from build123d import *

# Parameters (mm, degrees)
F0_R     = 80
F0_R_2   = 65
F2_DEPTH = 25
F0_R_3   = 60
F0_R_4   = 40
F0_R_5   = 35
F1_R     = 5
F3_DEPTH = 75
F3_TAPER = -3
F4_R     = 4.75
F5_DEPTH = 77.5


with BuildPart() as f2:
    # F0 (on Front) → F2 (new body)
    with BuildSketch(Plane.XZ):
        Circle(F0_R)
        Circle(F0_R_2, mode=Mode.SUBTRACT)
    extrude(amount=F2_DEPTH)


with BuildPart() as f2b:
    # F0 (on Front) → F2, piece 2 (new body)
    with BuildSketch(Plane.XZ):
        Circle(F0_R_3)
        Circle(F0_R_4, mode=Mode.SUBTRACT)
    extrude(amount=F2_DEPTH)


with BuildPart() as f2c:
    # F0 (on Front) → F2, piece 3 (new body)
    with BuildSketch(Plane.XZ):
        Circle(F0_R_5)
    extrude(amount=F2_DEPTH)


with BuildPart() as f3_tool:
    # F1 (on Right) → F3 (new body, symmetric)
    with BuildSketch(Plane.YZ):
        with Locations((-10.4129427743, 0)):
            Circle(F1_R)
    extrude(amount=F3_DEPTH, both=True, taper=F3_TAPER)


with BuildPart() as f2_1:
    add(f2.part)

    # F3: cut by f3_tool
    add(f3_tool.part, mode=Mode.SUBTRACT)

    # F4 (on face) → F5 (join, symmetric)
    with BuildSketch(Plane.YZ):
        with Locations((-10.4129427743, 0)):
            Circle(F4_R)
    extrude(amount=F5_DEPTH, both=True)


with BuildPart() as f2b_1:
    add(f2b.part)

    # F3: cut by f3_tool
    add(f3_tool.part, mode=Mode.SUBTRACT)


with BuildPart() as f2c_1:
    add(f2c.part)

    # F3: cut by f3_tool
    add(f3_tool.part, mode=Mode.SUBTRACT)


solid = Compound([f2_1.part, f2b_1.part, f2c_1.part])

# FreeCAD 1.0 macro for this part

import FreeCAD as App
import Part
import Sketcher

V = App.Vector
Q = App.Units.Quantity

doc = App.newDocument("Part")
params = doc.addObject("Spreadsheet::Sheet", "Params")
for row, (alias, value) in enumerate([
    ("sketch1_diameter", "160 mm"),
    ("sketch1_diameter2", "130 mm"),
    ("pad1_length", "25 mm"),
    ("sketch2_diameter", "120 mm"),
    ("sketch2_diameter2", "80 mm"),
    ("pad2_length", "25 mm"),
    ("sketch3_diameter", "70 mm"),
    ("pad3_length", "25 mm"),
    ("sketch4_diameter", "10 mm"),
    ("pad4_length", "150 mm"),
    ("pad4_taper", "3 deg"),
    ("sketch5_diameter", "9.5 mm"),
    ("pad5_length", "155 mm"),
], start=1):
    params.set(f"A{row}", alias)
    params.set(f"B{row}", "=" + value)
    params.setAlias(f"B{row}", alias)

body = doc.addObject("PartDesign::Body", "Body")

# Sketch on XZ plane
sketch1 = doc.addObject("Sketcher::SketchObject", "Sketch")
body.addObject(sketch1)
sketch1.AttachmentSupport = (doc.XZ_Plane, [""])
sketch1.MapMode = "FlatFace"
sketch1.addGeometry([
    Part.Circle(V(0, 0, 0), V(0, 0, 1), 80),
    Part.Circle(V(0, 0, 0), V(0, 0, 1), 65),
], False)
sketch1.addConstraint([
    Sketcher.Constraint("Coincident", 0, 3, -1, 1),
    Sketcher.Constraint("Coincident", 1, 3, -1, 1),
    Sketcher.Constraint("Diameter", 0, Q("160 mm")),
    Sketcher.Constraint("Diameter", 1, Q("130 mm")),
])
sketch1.setExpression("Constraints[2]", "Params.sketch1_diameter")
sketch1.setExpression("Constraints[3]", "Params.sketch1_diameter2")
pad1 = doc.addObject("PartDesign::Pad", "Pad")
body.addObject(pad1)
pad1.Profile = sketch1
pad1.setExpression("Length", "Params.pad1_length")
body2 = doc.addObject("PartDesign::Body", "Body001")

# Sketch on XZ plane
sketch2 = doc.addObject("Sketcher::SketchObject", "Sketch001")
body2.addObject(sketch2)
sketch2.AttachmentSupport = (doc.getObject("XZ_Plane001"), [""])
sketch2.MapMode = "FlatFace"
sketch2.addGeometry([
    Part.Circle(V(0, 0, 0), V(0, 0, 1), 60),
    Part.Circle(V(0, 0, 0), V(0, 0, 1), 40),
], False)
sketch2.addConstraint([
    Sketcher.Constraint("Coincident", 0, 3, -1, 1),
    Sketcher.Constraint("Coincident", 1, 3, -1, 1),
    Sketcher.Constraint("Diameter", 0, Q("120 mm")),
    Sketcher.Constraint("Diameter", 1, Q("80 mm")),
])
sketch2.setExpression("Constraints[2]", "Params.sketch2_diameter")
sketch2.setExpression("Constraints[3]", "Params.sketch2_diameter2")
pad2 = doc.addObject("PartDesign::Pad", "Pad001")
body2.addObject(pad2)
pad2.Profile = sketch2
pad2.setExpression("Length", "Params.pad2_length")
body3 = doc.addObject("PartDesign::Body", "Body002")

# Sketch on XZ plane
sketch3 = doc.addObject("Sketcher::SketchObject", "Sketch002")
body3.addObject(sketch3)
sketch3.AttachmentSupport = (doc.getObject("XZ_Plane002"), [""])
sketch3.MapMode = "FlatFace"
sketch3.addGeometry(Part.Circle(V(0, 0, 0), V(0, 0, 1), 35), False)
sketch3.addConstraint([
    Sketcher.Constraint("Coincident", 0, 3, -1, 1),
    Sketcher.Constraint("Diameter", 0, Q("70 mm")),
])
sketch3.setExpression("Constraints[1]", "Params.sketch3_diameter")
pad3 = doc.addObject("PartDesign::Pad", "Pad002")
body3.addObject(pad3)
pad3.Profile = sketch3
pad3.setExpression("Length", "Params.pad3_length")
body4 = doc.addObject("PartDesign::Body", "Body003")

# Sketch on YZ plane
sketch4 = doc.addObject("Sketcher::SketchObject", "Sketch003")
body4.addObject(sketch4)
sketch4.AttachmentSupport = (doc.getObject("YZ_Plane003"), [""])
sketch4.MapMode = "FlatFace"
sketch4.addGeometry(Part.Circle(V(-10, 0, 0), V(0, 0, 1), 5), False)
sketch4.addConstraint([
    Sketcher.Constraint("PointOnObject", 0, 3, -1),
    Sketcher.Constraint("Diameter", 0, Q("10 mm")),
    Sketcher.Constraint("DistanceX", 0, 3, -1, 1, Q("10.412943 mm")),
])
sketch4.setExpression("Constraints[1]", "Params.sketch4_diameter")
pad4 = doc.addObject("PartDesign::Pad", "Pad003")
body4.addObject(pad4)
pad4.Profile = sketch4
pad4.setExpression("Length", "Params.pad4_length")
pad4.Midplane = True
pad4.setExpression("TaperAngle", "Params.pad4_taper")
doc.recompute()

body5 = doc.addObject("PartDesign::Body", "Body004")
body5.BaseFeature = body4
boolean = doc.addObject("PartDesign::Boolean", "Boolean")
body.addObject(boolean)
boolean.Type = "Cut"
boolean.addObjects([body5])
doc.recompute()

# Sketch on YZ plane
sketch5 = doc.addObject("Sketcher::SketchObject", "Sketch004")
body.addObject(sketch5)
sketch5.AttachmentSupport = (doc.YZ_Plane, [""])
sketch5.MapMode = "FlatFace"
sketch5.addGeometry(Part.Circle(V(-10.4, 0, 0), V(0, 0, 1), 4.8), False)
sketch5.addConstraint([
    Sketcher.Constraint("PointOnObject", 0, 3, -1),
    Sketcher.Constraint("Diameter", 0, Q("9.5 mm")),
    Sketcher.Constraint("DistanceX", 0, 3, -1, 1, Q("10.412943 mm")),
])
sketch5.setExpression("Constraints[1]", "Params.sketch5_diameter")
pad5 = doc.addObject("PartDesign::Pad", "Pad004")
body.addObject(pad5)
pad5.Profile = sketch5
pad5.setExpression("Length", "Params.pad5_length")
pad5.Midplane = True
doc.recompute()

body6 = doc.addObject("PartDesign::Body", "Body005")
body6.BaseFeature = body4
boolean2 = doc.addObject("PartDesign::Boolean", "Boolean001")
body2.addObject(boolean2)
boolean2.Type = "Cut"
boolean2.addObjects([body6])
doc.recompute()

boolean3 = doc.addObject("PartDesign::Boolean", "Boolean002")
body3.addObject(boolean3)
boolean3.Type = "Cut"
boolean3.addObjects([body4])

doc.recompute()
